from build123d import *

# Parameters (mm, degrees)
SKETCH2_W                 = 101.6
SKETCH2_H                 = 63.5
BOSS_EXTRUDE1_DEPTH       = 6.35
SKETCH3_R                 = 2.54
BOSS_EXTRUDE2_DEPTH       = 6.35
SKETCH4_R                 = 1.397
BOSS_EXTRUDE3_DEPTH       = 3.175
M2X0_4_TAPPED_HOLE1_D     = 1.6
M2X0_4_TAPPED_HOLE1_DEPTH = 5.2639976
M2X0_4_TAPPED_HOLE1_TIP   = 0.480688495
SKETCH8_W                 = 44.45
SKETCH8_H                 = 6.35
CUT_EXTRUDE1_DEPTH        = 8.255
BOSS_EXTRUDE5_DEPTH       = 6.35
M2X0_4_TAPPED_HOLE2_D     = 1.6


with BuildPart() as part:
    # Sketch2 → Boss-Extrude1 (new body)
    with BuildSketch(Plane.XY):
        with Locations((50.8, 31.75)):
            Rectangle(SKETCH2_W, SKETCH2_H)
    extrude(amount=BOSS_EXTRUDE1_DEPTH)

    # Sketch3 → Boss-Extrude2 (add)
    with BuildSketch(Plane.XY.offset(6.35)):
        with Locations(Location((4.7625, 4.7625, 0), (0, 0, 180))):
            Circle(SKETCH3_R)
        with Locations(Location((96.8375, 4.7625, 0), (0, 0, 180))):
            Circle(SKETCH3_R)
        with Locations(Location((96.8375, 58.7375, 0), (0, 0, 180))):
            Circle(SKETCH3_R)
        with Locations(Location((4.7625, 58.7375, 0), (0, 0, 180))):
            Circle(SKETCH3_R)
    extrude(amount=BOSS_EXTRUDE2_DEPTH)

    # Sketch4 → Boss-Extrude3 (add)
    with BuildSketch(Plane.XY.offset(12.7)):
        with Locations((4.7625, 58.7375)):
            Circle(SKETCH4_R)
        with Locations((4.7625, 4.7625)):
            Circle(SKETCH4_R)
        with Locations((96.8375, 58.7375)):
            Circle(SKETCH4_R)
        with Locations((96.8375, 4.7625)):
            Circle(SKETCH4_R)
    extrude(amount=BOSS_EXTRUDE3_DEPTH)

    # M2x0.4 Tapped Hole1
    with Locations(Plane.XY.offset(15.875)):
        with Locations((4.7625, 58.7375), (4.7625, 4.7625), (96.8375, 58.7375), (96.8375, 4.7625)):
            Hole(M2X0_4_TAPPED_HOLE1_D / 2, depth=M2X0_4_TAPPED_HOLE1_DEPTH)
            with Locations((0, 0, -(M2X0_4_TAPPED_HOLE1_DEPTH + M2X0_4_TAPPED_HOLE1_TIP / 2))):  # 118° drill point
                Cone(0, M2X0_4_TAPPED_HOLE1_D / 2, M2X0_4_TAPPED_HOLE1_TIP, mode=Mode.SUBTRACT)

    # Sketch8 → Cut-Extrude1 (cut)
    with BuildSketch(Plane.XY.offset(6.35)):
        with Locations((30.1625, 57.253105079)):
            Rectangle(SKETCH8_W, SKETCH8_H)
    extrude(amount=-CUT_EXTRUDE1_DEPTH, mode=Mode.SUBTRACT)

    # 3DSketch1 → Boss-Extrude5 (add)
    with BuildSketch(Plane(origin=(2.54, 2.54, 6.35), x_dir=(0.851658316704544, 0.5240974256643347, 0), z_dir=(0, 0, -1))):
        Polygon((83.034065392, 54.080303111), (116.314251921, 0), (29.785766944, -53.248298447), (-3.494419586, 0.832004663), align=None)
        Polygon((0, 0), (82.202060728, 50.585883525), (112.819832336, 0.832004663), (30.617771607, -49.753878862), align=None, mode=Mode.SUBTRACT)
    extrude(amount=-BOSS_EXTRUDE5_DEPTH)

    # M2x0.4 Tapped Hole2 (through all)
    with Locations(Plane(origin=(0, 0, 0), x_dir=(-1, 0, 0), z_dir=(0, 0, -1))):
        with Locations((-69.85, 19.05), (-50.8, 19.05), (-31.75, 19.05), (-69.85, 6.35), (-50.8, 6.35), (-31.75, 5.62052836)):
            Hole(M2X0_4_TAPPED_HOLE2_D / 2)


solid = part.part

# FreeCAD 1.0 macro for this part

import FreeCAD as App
import Part
import Sketcher

V = App.Vector
Q = App.Units.Quantity

doc = App.newDocument("Part")
body = doc.addObject("PartDesign::Body", "Body")

sketch1 = body.newObject("Sketcher::SketchObject", "Sketch")
sketch1.AttachmentSupport = (doc.getObject("XY_Plane"), [""])
sketch1.MapMode = "FlatFace"
sketch1.addGeometry(Part.LineSegment(V(0, 63.5, 0), V(0, 0, 0)), False)
sketch1.addGeometry(Part.LineSegment(V(0, 0, 0), V(101.6, 0, 0)), False)
sketch1.addGeometry(Part.LineSegment(V(101.6, 0, 0), V(101.6, 63.5, 0)), False)
sketch1.addGeometry(Part.LineSegment(V(101.6, 63.5, 0), V(0, 63.5, 0)), False)
sketch1.addConstraint(Sketcher.Constraint("Coincident", 0, 2, 1, 1))
sketch1.addConstraint(Sketcher.Constraint("Coincident", 1, 2, 2, 1))
sketch1.addConstraint(Sketcher.Constraint("Coincident", 2, 2, 3, 1))
sketch1.addConstraint(Sketcher.Constraint("Coincident", 3, 2, 0, 1))
sketch1.addConstraint(Sketcher.Constraint("Vertical", 0))
sketch1.addConstraint(Sketcher.Constraint("Horizontal", 1))
sketch1.addConstraint(Sketcher.Constraint("Vertical", 2))
sketch1.addConstraint(Sketcher.Constraint("Horizontal", 3))
sketch1.addConstraint(Sketcher.Constraint("Coincident", 0, 2, -1, 1))
sketch1.addConstraint(Sketcher.Constraint("DistanceX", 1, 1, 1, 2, Q("4 in")))
sketch1.addConstraint(Sketcher.Constraint("DistanceY", 0, 2, 0, 1, Q("2.5 in")))
pad1 = body.newObject("PartDesign::Pad", "Pad")
pad1.Profile = sketch1
pad1.Length = Q("0.25 in")

sketch2 = body.newObject("Sketcher::SketchObject", "Sketch001")
sketch2.AttachmentSupport = (doc.getObject("XY_Plane"), [""])
sketch2.MapMode = "FlatFace"
sketch2.AttachmentOffset = App.Placement(V(0, 0, 0.25 * 25.4), App.Rotation())
sketch2.addGeometry(Part.Circle(V(4.7625, 4.7625, 0), V(0, 0, 1), 2.54), False)
sketch2.addGeometry(Part.Circle(V(96.8375, 4.7625, 0), V(0, 0, 1), 2.54), False)
sketch2.addGeometry(Part.Circle(V(96.8375, 58.7375, 0), V(0, 0, 1), 2.54), False)
sketch2.addGeometry(Part.Circle(V(4.7625, 58.7375, 0), V(0, 0, 1), 2.54), False)
sketch2.addConstraint(Sketcher.Constraint("Equal", 0, 1))
sketch2.addConstraint(Sketcher.Constraint("Equal", 1, 2))
sketch2.addConstraint(Sketcher.Constraint("Equal", 2, 3))
sketch2.addConstraint(Sketcher.Constraint("Horizontal", 0, 3, 1, 3))
sketch2.addConstraint(Sketcher.Constraint("Horizontal", 2, 3, 3, 3))
sketch2.addConstraint(Sketcher.Constraint("Vertical", 1, 3, 2, 3))
sketch2.addConstraint(Sketcher.Constraint("Vertical", 0, 3, 3, 3))
sketch2.addConstraint(Sketcher.Constraint("Diameter", 0, Q("0.2 in")))
sketch2.addConstraint(Sketcher.Constraint("DistanceX", -1, 1, 0, 3, Q("0.1875 in")))
sketch2.addConstraint(Sketcher.Constraint("DistanceY", -1, 1, 0, 3, Q("0.1875 in")))
sketch2.addConstraint(Sketcher.Constraint("DistanceX", -1, 1, 1, 3, Q("3.8125 in")))
sketch2.addConstraint(Sketcher.Constraint("DistanceY", -1, 1, 2, 3, Q("2.3125 in")))
pad2 = body.newObject("PartDesign::Pad", "Pad001")
pad2.Profile = sketch2
pad2.Length = Q("0.25 in")

sketch3 = body.newObject("Sketcher::SketchObject", "Sketch002")
sketch3.AttachmentSupport = (doc.getObject("XY_Plane"), [""])
sketch3.MapMode = "FlatFace"
sketch3.AttachmentOffset = App.Placement(V(0, 0, 0.5 * 25.4), App.Rotation())
sketch3.addGeometry(Part.Circle(V(4.7625, 58.7375, 0), V(0, 0, 1), 1.397), False)
sketch3.addGeometry(Part.Circle(V(4.7625, 4.7625, 0), V(0, 0, 1), 1.397), False)
sketch3.addGeometry(Part.Circle(V(96.8375, 58.7375, 0), V(0, 0, 1), 1.397), False)
sketch3.addGeometry(Part.Circle(V(96.8375, 4.7625, 0), V(0, 0, 1), 1.397), False)
sketch3.addConstraint(Sketcher.Constraint("Equal", 0, 1))
sketch3.addConstraint(Sketcher.Constraint("Equal", 1, 2))
sketch3.addConstraint(Sketcher.Constraint("Equal", 2, 3))
sketch3.addConstraint(Sketcher.Constraint("Horizontal", 0, 3, 2, 3))
sketch3.addConstraint(Sketcher.Constraint("Horizontal", 1, 3, 3, 3))
sketch3.addConstraint(Sketcher.Constraint("Vertical", 0, 3, 1, 3))
sketch3.addConstraint(Sketcher.Constraint("Vertical", 2, 3, 3, 3))
sketch3.addConstraint(Sketcher.Constraint("Diameter", 0, Q("0.11 in")))
sketch3.addConstraint(Sketcher.Constraint("DistanceX", -1, 1, 0, 3, Q("0.1875 in")))
sketch3.addConstraint(Sketcher.Constraint("DistanceY", -1, 1, 0, 3, Q("2.3125 in")))
sketch3.addConstraint(Sketcher.Constraint("DistanceY", -1, 1, 1, 3, Q("0.1875 in")))
sketch3.addConstraint(Sketcher.Constraint("DistanceX", -1, 1, 2, 3, Q("3.8125 in")))
pad3 = body.newObject("PartDesign::Pad", "Pad002")
pad3.Profile = sketch3
pad3.Length = Q("0.125 in")

sketch4 = body.newObject("Sketcher::SketchObject", "Sketch003")
sketch4.AttachmentSupport = (doc.getObject("XY_Plane"), [""])
sketch4.MapMode = "FlatFace"
sketch4.AttachmentOffset = App.Placement(V(0, 0, 0.625 * 25.4), App.Rotation())
sketch4.addGeometry(Part.Circle(V(4.7625, 58.7375, 0), V(0, 0, 1), 0.8), False)
sketch4.addGeometry(Part.Circle(V(4.7625, 4.7625, 0), V(0, 0, 1), 0.8), False)
sketch4.addGeometry(Part.Circle(V(96.8375, 58.7375, 0), V(0, 0, 1), 0.8), False)
sketch4.addGeometry(Part.Circle(V(96.8375, 4.7625, 0), V(0, 0, 1), 0.8), False)
sketch4.addConstraint(Sketcher.Constraint("Equal", 0, 1))
sketch4.addConstraint(Sketcher.Constraint("Equal", 1, 2))
sketch4.addConstraint(Sketcher.Constraint("Equal", 2, 3))
sketch4.addConstraint(Sketcher.Constraint("Horizontal", 0, 3, 2, 3))
sketch4.addConstraint(Sketcher.Constraint("Horizontal", 1, 3, 3, 3))
sketch4.addConstraint(Sketcher.Constraint("Vertical", 0, 3, 1, 3))
sketch4.addConstraint(Sketcher.Constraint("Vertical", 2, 3, 3, 3))
sketch4.addConstraint(Sketcher.Constraint("Diameter", 0, 1.6))
sketch4.addConstraint(Sketcher.Constraint("DistanceX", -1, 1, 0, 3, Q("0.1875 in")))
sketch4.addConstraint(Sketcher.Constraint("DistanceY", -1, 1, 0, 3, Q("2.3125 in")))
sketch4.addConstraint(Sketcher.Constraint("DistanceY", -1, 1, 1, 3, Q("0.1875 in")))
sketch4.addConstraint(Sketcher.Constraint("DistanceX", -1, 1, 2, 3, Q("3.8125 in")))
doc.recompute()
hole = body.newObject("PartDesign::Hole", "Hole")
hole.Profile = sketch4
hole.ThreadType = "None"
hole.Diameter = 1.6
hole.DepthType = "Dimension"
hole.Depth = 5.263998
hole.DrillPoint = "Angled"
hole.DrillPointAngle = 118

sketch5 = body.newObject("Sketcher::SketchObject", "Sketch004")
sketch5.AttachmentSupport = (doc.getObject("XY_Plane"), [""])
sketch5.MapMode = "FlatFace"
sketch5.AttachmentOffset = App.Placement(V(0, 0, 0.25 * 25.4), App.Rotation())
sketch5.addGeometry(Part.LineSegment(V(7.9375, 60.428105, 0), V(7.9375, 54.078105, 0)), False)
sketch5.addGeometry(Part.LineSegment(V(7.9375, 54.078105, 0), V(52.3875, 54.078105, 0)), False)
sketch5.addGeometry(Part.LineSegment(V(52.3875, 54.078105, 0), V(52.3875, 60.428105, 0)), False)
sketch5.addGeometry(Part.LineSegment(V(52.3875, 60.428105, 0), V(7.9375, 60.428105, 0)), False)
sketch5.addConstraint(Sketcher.Constraint("Coincident", 0, 2, 1, 1))
sketch5.addConstraint(Sketcher.Constraint("Coincident", 1, 2, 2, 1))
sketch5.addConstraint(Sketcher.Constraint("Coincident", 2, 2, 3, 1))
sketch5.addConstraint(Sketcher.Constraint("Coincident", 3, 2, 0, 1))
sketch5.addConstraint(Sketcher.Constraint("Vertical", 0))
sketch5.addConstraint(Sketcher.Constraint("Horizontal", 1))
sketch5.addConstraint(Sketcher.Constraint("Vertical", 2))
sketch5.addConstraint(Sketcher.Constraint("Horizontal", 3))
sketch5.addConstraint(Sketcher.Constraint("DistanceX", 1, 1, 1, 2, Q("1.75 in")))
sketch5.addConstraint(Sketcher.Constraint("DistanceY", 0, 2, 0, 1, Q("0.25 in")))
sketch5.addConstraint(Sketcher.Constraint("DistanceX", -1, 1, 0, 2, Q("0.3125 in")))
sketch5.addConstraint(Sketcher.Constraint("DistanceY", -1, 1, 0, 2, 54.078105))
pocket1 = body.newObject("PartDesign::Pocket", "Pocket")
pocket1.Profile = sketch5
pocket1.Length = Q("0.325 in")

sketch6 = body.newObject("Sketcher::SketchObject", "Sketch005")
sketch6.AttachmentSupport = (doc.getObject("XY_Plane"), [""])
sketch6.MapMode = "FlatFace"
sketch6.AttachmentOffset = App.Placement(V(0, 0, 0.25 * 25.4), App.Rotation())
sketch6.addGeometry(Part.LineSegment(V(101.6, 63.5, 0), V(101.6, 0, 0)), False)
sketch6.addGeometry(Part.LineSegment(V(101.6, 0, 0), V(0, 0, 0)), False)
sketch6.addGeometry(Part.LineSegment(V(0, 0, 0), V(0, 63.5, 0)), False)
sketch6.addGeometry(Part.LineSegment(V(0, 63.5, 0), V(101.6, 63.5, 0)), False)
sketch6.addGeometry(Part.LineSegment(V(2.54, 2.54, 0), V(99.06, 2.54, 0)), False)
sketch6.addGeometry(Part.LineSegment(V(99.06, 2.54, 0), V(99.06, 60.96, 0)), False)
sketch6.addGeometry(Part.LineSegment(V(99.06, 60.96, 0), V(2.54, 60.96, 0)), False)
sketch6.addGeometry(Part.LineSegment(V(2.54, 60.96, 0), V(2.54, 2.54, 0)), False)
sketch6.addConstraint(Sketcher.Constraint("Coincident", 0, 2, 1, 1))
sketch6.addConstraint(Sketcher.Constraint("Coincident", 1, 2, 2, 1))
sketch6.addConstraint(Sketcher.Constraint("Coincident", 2, 2, 3, 1))
sketch6.addConstraint(Sketcher.Constraint("Coincident", 3, 2, 0, 1))
sketch6.addConstraint(Sketcher.Constraint("Coincident", 4, 2, 5, 1))
sketch6.addConstraint(Sketcher.Constraint("Coincident", 5, 2, 6, 1))
sketch6.addConstraint(Sketcher.Constraint("Coincident", 6, 2, 7, 1))
sketch6.addConstraint(Sketcher.Constraint("Coincident", 7, 2, 4, 1))
sketch6.addConstraint(Sketcher.Constraint("Vertical", 0))
sketch6.addConstraint(Sketcher.Constraint("Horizontal", 1))
sketch6.addConstraint(Sketcher.Constraint("Vertical", 2))
sketch6.addConstraint(Sketcher.Constraint("Horizontal", 3))
sketch6.addConstraint(Sketcher.Constraint("Horizontal", 4))
sketch6.addConstraint(Sketcher.Constraint("Vertical", 5))
sketch6.addConstraint(Sketcher.Constraint("Horizontal", 6))
sketch6.addConstraint(Sketcher.Constraint("Vertical", 7))
sketch6.addConstraint(Sketcher.Constraint("Coincident", 1, 2, -1, 1))
sketch6.addConstraint(Sketcher.Constraint("DistanceX", 1, 2, 1, 1, Q("4 in")))
sketch6.addConstraint(Sketcher.Constraint("DistanceX", 4, 1, 4, 2, Q("3.8 in")))
sketch6.addConstraint(Sketcher.Constraint("DistanceY", 0, 2, 0, 1, Q("2.5 in")))
sketch6.addConstraint(Sketcher.Constraint("DistanceY", 5, 1, 5, 2, Q("2.3 in")))
sketch6.addConstraint(Sketcher.Constraint("DistanceX", -1, 1, 4, 2, Q("3.9 in")))
sketch6.addConstraint(Sketcher.Constraint("DistanceY", -1, 1, 4, 2, Q("0.1 in")))
pad4 = body.newObject("PartDesign::Pad", "Pad003")
pad4.Profile = sketch6
pad4.Length = Q("0.25 in")

sketch7 = body.newObject("Sketcher::SketchObject", "Sketch006")
sketch7.AttachmentSupport = (doc.getObject("XY_Plane"), [""])
sketch7.MapMode = "FlatFace"
sketch7.addGeometry(Part.Circle(V(69.85, 19.05, 0), V(0, 0, 1), 0.8), False)
sketch7.addGeometry(Part.Circle(V(50.8, 19.05, 0), V(0, 0, 1), 0.8), False)
sketch7.addGeometry(Part.Circle(V(31.75, 19.05, 0), V(0, 0, 1), 0.8), False)
sketch7.addGeometry(Part.Circle(V(69.85, 6.35, 0), V(0, 0, 1), 0.8), False)
sketch7.addGeometry(Part.Circle(V(50.8, 6.35, 0), V(0, 0, 1), 0.8), False)
sketch7.addGeometry(Part.Circle(V(31.75, 5.620528, 0), V(0, 0, 1), 0.8), False)
sketch7.addConstraint(Sketcher.Constraint("Equal", 0, 1))
sketch7.addConstraint(Sketcher.Constraint("Equal", 1, 2))
sketch7.addConstraint(Sketcher.Constraint("Equal", 2, 3))
sketch7.addConstraint(Sketcher.Constraint("Equal", 3, 4))
sketch7.addConstraint(Sketcher.Constraint("Equal", 4, 5))
sketch7.addConstraint(Sketcher.Constraint("Horizontal", 0, 3, 1, 3))
sketch7.addConstraint(Sketcher.Constraint("Horizontal", 1, 3, 2, 3))
sketch7.addConstraint(Sketcher.Constraint("Horizontal", 3, 3, 4, 3))
sketch7.addConstraint(Sketcher.Constraint("Vertical", 0, 3, 3, 3))
sketch7.addConstraint(Sketcher.Constraint("Vertical", 1, 3, 4, 3))
sketch7.addConstraint(Sketcher.Constraint("Vertical", 2, 3, 5, 3))
sketch7.addConstraint(Sketcher.Constraint("DistanceX", -1, 1, 1, 3, Q("2 in")))
sketch7.addConstraint(Sketcher.Constraint("DistanceX", 2, 3, 0, 3, Q("1.5 in")))
sketch7.addConstraint(Sketcher.Constraint("DistanceY", 3, 3, 0, 3, Q("0.5 in")))
sketch7.addConstraint(Sketcher.Constraint("Diameter", 0, 1.6))
sketch7.addConstraint(Sketcher.Constraint("DistanceX", -1, 1, 0, 3, Q("2.75 in")))
sketch7.addConstraint(Sketcher.Constraint("DistanceY", -1, 1, 0, 3, Q("0.75 in")))
sketch7.addConstraint(Sketcher.Constraint("DistanceY", -1, 1, 5, 3, 5.620528))
doc.recompute()
hole2 = body.newObject("PartDesign::Hole", "Hole001")
hole2.Profile = sketch7
hole2.ThreadType = "None"
hole2.Diameter = 1.6
hole2.DepthType = "ThroughAll"
hole2.Reversed = True

doc.recompute()
